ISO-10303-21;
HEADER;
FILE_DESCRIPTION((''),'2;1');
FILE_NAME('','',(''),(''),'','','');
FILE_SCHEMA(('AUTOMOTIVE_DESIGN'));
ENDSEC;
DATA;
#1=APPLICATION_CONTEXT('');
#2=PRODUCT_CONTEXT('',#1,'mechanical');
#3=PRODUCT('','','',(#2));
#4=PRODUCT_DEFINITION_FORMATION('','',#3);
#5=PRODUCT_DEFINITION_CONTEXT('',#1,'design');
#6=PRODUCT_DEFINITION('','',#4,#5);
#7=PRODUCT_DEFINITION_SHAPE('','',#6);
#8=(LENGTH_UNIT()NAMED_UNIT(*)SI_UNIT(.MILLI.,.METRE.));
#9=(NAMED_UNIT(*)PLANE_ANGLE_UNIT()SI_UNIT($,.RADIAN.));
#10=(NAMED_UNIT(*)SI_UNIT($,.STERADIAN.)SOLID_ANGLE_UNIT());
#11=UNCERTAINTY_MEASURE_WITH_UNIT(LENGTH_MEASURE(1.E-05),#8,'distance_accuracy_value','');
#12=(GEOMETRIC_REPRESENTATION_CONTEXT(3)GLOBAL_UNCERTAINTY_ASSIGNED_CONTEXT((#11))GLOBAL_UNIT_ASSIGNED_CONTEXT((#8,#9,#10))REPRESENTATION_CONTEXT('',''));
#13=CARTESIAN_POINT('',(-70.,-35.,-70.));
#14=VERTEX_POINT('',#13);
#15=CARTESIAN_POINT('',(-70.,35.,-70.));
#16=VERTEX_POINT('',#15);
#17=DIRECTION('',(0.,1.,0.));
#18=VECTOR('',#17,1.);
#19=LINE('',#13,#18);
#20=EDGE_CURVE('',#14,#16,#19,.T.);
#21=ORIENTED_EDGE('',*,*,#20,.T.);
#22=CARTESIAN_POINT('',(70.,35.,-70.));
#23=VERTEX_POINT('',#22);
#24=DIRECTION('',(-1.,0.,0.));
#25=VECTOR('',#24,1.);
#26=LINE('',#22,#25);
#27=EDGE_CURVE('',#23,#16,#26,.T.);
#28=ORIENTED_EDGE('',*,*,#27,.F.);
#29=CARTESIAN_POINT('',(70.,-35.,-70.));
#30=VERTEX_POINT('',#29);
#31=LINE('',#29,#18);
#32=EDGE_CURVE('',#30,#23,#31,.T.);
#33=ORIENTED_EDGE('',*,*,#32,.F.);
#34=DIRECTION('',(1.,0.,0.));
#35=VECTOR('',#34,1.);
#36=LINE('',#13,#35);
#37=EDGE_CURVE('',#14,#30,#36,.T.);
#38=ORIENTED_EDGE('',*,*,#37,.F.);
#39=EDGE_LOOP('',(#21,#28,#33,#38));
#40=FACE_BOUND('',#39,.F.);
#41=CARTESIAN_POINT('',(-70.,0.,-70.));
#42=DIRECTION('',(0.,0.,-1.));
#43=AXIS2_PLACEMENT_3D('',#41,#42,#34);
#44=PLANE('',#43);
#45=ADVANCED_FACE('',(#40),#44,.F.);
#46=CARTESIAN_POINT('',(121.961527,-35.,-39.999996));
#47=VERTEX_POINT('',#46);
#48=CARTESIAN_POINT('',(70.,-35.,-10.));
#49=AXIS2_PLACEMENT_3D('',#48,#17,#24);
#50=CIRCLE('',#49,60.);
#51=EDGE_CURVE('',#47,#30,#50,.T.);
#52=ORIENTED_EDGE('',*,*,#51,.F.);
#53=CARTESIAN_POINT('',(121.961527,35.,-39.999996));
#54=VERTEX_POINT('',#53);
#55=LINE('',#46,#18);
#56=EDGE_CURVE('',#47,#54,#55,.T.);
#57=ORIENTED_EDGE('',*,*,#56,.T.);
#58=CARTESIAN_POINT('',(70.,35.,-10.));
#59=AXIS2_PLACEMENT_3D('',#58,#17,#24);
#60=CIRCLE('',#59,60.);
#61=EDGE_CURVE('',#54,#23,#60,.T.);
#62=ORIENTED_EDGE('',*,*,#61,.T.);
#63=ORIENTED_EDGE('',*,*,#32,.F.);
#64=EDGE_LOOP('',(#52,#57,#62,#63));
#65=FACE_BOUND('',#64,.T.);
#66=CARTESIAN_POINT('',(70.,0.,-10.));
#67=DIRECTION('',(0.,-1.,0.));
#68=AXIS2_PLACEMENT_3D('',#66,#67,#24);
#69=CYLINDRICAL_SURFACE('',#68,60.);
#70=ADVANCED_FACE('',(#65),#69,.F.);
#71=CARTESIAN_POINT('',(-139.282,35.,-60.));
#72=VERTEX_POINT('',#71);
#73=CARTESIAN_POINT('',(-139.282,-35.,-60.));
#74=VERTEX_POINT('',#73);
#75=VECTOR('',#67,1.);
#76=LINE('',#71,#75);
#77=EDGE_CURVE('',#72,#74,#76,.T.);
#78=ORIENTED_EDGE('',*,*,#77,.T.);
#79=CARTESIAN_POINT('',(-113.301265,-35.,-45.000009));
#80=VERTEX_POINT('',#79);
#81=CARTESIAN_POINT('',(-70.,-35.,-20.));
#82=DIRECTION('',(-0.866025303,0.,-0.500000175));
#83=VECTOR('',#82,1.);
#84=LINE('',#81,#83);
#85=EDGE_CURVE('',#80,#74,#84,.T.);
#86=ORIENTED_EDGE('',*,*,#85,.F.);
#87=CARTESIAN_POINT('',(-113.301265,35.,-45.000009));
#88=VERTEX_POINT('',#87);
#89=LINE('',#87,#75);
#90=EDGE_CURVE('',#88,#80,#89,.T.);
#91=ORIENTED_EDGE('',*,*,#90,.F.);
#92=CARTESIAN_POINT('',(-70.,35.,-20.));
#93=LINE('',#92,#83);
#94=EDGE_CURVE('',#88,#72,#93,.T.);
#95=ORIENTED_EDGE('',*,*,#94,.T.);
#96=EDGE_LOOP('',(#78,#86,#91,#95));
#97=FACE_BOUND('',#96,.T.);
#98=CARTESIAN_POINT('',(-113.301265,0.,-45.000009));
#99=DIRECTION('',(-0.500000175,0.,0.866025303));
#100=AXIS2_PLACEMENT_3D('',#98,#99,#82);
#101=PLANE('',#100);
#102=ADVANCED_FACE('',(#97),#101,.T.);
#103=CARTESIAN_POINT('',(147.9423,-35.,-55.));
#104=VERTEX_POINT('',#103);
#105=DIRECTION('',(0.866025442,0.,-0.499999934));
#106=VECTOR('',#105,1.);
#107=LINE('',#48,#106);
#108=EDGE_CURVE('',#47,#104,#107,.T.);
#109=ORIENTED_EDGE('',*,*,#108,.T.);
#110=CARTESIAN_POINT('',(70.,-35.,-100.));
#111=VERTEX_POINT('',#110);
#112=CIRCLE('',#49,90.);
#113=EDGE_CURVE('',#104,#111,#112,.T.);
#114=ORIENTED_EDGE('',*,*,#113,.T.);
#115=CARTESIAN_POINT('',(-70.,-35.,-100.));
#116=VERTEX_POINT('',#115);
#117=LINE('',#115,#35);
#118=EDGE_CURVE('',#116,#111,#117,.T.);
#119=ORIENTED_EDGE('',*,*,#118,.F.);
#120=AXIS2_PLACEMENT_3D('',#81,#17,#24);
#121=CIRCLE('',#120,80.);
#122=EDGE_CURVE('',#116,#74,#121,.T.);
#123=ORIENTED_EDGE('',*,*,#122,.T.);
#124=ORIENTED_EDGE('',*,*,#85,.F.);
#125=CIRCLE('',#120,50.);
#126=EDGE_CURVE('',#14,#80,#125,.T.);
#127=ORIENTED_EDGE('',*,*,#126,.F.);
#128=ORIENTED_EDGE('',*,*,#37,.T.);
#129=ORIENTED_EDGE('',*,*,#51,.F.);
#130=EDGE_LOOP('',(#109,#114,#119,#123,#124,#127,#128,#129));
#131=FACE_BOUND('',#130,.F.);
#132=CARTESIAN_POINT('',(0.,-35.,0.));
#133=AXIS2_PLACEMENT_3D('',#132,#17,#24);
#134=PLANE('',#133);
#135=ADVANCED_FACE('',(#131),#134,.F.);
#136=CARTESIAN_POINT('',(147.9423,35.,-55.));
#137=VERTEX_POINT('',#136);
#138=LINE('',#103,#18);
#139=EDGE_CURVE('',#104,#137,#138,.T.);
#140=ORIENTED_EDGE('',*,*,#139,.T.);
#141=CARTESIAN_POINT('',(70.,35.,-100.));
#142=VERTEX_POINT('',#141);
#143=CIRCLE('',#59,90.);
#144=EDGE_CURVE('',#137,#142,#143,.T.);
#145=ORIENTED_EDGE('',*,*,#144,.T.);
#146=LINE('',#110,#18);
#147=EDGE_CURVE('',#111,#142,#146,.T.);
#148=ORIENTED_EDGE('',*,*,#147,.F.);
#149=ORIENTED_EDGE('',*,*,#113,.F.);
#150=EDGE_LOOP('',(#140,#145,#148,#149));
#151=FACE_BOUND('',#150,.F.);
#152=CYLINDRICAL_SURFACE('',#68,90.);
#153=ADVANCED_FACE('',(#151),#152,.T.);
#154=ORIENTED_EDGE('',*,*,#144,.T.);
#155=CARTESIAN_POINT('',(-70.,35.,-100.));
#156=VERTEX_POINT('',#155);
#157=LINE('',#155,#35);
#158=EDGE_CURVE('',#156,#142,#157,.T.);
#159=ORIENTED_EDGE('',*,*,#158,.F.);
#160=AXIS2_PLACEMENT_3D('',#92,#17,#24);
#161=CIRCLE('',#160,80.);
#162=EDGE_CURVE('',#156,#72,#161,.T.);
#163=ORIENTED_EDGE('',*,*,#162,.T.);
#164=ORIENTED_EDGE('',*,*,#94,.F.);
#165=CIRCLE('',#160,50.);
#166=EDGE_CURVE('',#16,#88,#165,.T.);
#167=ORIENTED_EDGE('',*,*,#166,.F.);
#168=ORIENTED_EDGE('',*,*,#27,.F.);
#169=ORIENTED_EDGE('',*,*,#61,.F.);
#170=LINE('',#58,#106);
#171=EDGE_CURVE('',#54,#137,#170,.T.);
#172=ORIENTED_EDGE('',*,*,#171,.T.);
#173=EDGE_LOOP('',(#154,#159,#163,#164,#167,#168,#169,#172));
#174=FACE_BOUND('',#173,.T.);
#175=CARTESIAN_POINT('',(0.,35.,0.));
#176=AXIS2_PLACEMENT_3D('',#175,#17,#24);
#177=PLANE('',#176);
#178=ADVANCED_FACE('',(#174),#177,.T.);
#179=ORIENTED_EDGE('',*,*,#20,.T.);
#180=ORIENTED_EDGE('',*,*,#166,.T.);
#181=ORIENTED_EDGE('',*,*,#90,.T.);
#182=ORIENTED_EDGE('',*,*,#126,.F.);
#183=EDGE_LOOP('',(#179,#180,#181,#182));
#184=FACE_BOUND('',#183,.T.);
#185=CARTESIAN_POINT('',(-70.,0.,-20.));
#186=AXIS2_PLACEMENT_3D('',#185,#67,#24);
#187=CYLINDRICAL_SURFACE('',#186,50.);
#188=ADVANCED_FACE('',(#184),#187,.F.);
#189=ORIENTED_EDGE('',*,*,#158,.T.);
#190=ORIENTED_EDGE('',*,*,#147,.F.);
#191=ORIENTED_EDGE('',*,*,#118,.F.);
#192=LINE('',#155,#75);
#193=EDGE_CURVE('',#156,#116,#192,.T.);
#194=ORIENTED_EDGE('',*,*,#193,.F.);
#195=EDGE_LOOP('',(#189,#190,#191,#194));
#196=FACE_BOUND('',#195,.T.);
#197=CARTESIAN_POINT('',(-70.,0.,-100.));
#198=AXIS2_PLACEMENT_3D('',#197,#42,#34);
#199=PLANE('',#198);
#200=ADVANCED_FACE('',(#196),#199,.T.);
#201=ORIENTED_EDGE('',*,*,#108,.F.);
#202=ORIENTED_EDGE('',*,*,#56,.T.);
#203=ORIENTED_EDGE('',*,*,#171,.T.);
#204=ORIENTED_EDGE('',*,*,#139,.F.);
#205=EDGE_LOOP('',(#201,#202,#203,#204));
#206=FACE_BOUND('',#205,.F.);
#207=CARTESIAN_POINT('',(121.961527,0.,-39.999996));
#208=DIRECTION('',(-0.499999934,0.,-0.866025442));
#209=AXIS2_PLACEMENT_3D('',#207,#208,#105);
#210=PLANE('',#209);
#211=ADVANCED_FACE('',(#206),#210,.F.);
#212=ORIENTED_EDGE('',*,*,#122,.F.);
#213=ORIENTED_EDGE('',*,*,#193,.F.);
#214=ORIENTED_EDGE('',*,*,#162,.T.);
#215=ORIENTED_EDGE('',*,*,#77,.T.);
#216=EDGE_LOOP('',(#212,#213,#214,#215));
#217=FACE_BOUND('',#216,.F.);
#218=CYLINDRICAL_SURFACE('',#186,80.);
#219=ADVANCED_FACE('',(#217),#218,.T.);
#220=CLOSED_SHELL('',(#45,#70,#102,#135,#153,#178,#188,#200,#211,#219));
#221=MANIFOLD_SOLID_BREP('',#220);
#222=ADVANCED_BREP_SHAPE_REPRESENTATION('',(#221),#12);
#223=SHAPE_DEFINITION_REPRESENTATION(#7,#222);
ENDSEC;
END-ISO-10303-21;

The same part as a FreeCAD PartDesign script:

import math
import FreeCAD as App
import Part
import Sketcher
from FreeCAD import Vector
Q = App.Units.Quantity

doc = App.newDocument("Part")
body = doc.addObject("PartDesign::Body", "Body")

sketch1 = body.newObject("Sketcher::SketchObject", "Sketch")
sketch1.AttachmentSupport = (doc.getObject("XZ_Plane"), [""])
sketch1.MapMode = "FlatFace"
sketch1.addGeometry(Part.ArcOfCircle(Part.Circle(Vector(-70, -20, 0), Vector(0, 0, 1), 50), math.radians(-150), math.radians(-90)), False)
sketch1.addGeometry(Part.LineSegment(Vector(-70, -70, 0), Vector(70, -70, 0)), False)
sketch1.addGeometry(Part.ArcOfCircle(Part.Circle(Vector(70, -10, 0), Vector(0, 0, 1), 60), math.radians(-90), math.radians(-30)), False)
sketch1.addGeometry(Part.LineSegment(Vector(122, -40, 0), Vector(148, -55, 0)), False)
sketch1.addGeometry(Part.ArcOfCircle(Part.Circle(Vector(70, -10, 0), Vector(0, 0, 1), 90), math.radians(-90), math.radians(-30)), False)
sketch1.addGeometry(Part.LineSegment(Vector(70, -100, 0), Vector(-70, -100, 0)), False)
sketch1.addGeometry(Part.ArcOfCircle(Part.Circle(Vector(-70, -20, 0), Vector(0, 0, 1), 80), math.radians(-150), math.radians(-90)), False)
sketch1.addGeometry(Part.LineSegment(Vector(-139, -60, 0), Vector(-113, -45, 0)), False)
sketch1.addConstraint(Sketcher.Constraint("Tangent", 0, 2, 1, 1))
sketch1.addConstraint(Sketcher.Constraint("Tangent", 1, 2, 2, 1))
sketch1.addConstraint(Sketcher.Constraint("Coincident", 2, 2, 3, 1))
sketch1.addConstraint(Sketcher.Constraint("Coincident", 3, 2, 4, 2))
sketch1.addConstraint(Sketcher.Constraint("Tangent", 4, 1, 5, 1))
sketch1.addConstraint(Sketcher.Constraint("Tangent", 5, 2, 6, 2))
sketch1.addConstraint(Sketcher.Constraint("Coincident", 6, 1, 7, 1))
sketch1.addConstraint(Sketcher.Constraint("Coincident", 7, 2, 0, 1))
sketch1.addConstraint(Sketcher.Constraint("Horizontal", 1))
sketch1.addConstraint(Sketcher.Constraint("Horizontal", 5))
sketch1.addConstraint(Sketcher.Constraint("Coincident", 4, 3, 2, 3))
sketch1.addConstraint(Sketcher.Constraint("Coincident", 6, 3, 0, 3))
sketch1.addConstraint(Sketcher.Constraint("Radius", 0, Q("50 mm")))
sketch1.addConstraint(Sketcher.Constraint("Radius", 2, Q("60 mm")))
sketch1.addConstraint(Sketcher.Constraint("Radius", 4, Q("90 mm")))
sketch1.addConstraint(Sketcher.Constraint("DistanceX", 0, 3, -1, 1, Q("70 mm")))
sketch1.addConstraint(Sketcher.Constraint("DistanceX", -1, 1, 2, 3, Q("70 mm")))
sketch1.addConstraint(Sketcher.Constraint("DistanceY", 0, 2, -1, 1, Q("70 mm")))
sketch1.addConstraint(Sketcher.Constraint("DistanceY", 6, 1, -1, 1, Q("60 mm")))
sketch1.addConstraint(Sketcher.Constraint("DistanceY", 4, 1, 2, 2, Q("60 mm")))
sketch1.addConstraint(Sketcher.Constraint("Angle", 3, Q("-30 deg")))
sketch1.addConstraint(Sketcher.Constraint("Angle", 7, Q("30 deg")))
pad1 = body.newObject("PartDesign::Pad", "Pad")
pad1.Profile = sketch1
pad1.Length = 70
pad1.Midplane = True

doc.recompute()
